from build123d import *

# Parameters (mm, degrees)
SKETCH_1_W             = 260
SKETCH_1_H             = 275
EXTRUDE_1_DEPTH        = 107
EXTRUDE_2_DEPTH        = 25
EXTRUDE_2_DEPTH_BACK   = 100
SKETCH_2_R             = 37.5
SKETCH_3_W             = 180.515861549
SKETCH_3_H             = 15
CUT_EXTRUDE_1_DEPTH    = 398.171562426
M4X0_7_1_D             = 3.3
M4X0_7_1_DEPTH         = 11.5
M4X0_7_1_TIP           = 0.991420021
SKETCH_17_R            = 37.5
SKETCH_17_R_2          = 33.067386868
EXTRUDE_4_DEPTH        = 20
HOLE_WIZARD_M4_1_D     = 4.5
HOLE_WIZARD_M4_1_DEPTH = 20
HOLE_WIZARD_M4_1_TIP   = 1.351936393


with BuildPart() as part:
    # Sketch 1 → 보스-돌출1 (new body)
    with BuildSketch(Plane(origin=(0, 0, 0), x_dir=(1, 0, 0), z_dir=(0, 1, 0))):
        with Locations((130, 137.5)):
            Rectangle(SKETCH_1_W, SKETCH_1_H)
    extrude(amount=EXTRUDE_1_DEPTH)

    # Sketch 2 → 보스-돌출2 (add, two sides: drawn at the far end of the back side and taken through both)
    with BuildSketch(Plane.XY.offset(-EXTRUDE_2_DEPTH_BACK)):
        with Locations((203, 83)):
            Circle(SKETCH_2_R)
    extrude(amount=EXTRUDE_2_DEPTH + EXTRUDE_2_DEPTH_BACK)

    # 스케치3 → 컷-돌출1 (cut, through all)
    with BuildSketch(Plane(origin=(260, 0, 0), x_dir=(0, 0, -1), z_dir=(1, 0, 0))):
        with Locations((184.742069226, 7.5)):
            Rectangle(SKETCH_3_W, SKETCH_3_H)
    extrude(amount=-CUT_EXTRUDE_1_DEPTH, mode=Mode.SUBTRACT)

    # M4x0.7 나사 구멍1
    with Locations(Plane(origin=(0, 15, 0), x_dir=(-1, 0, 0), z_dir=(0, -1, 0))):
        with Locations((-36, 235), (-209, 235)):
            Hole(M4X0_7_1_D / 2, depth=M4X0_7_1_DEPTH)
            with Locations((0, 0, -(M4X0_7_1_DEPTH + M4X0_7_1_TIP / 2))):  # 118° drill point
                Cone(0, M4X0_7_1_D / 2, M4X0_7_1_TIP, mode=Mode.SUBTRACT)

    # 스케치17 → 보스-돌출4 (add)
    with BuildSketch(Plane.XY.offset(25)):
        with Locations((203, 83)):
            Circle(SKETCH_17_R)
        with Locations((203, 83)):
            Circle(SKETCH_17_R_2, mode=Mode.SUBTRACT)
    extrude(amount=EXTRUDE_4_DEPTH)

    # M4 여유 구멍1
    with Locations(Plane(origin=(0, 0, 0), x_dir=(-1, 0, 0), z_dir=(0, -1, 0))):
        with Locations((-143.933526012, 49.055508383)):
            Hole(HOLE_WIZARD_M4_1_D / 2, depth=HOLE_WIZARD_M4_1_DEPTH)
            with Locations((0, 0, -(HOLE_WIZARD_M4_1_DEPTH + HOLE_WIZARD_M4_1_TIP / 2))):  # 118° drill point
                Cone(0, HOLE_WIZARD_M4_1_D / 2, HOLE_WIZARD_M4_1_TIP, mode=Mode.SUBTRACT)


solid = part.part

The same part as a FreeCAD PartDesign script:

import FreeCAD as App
import Part
import Sketcher
from FreeCAD import Vector
Q = App.Units.Quantity


def add_polygon(sketch, points):
    """Adds a closed chain of lines whose ends are joined by coincident constraints."""
    first, n = sketch.GeometryCount, len(points)
    for a, b in zip(points, points[1:] + points[:1]):
        sketch.addGeometry(Part.LineSegment(App.Vector(*a, 0), App.Vector(*b, 0)), False)
    for i in range(n):
        sketch.addConstraint(Sketcher.Constraint("Coincident", first + i, 2, first + (i + 1) % n, 1))

doc = App.newDocument("Part")
body = doc.addObject("PartDesign::Body", "Body")

# Sketch on XZ plane
sketch1 = body.newObject("Sketcher::SketchObject", "Sketch")
sketch1.AttachmentSupport = (doc.getObject("XZ_Plane"), [""])
sketch1.MapMode = "FlatFace"
add_polygon(sketch1, [(0, -275), (0, 0), (260, 0), (260, -275)])  # lines 0-3
sketch1.addConstraint([
    Sketcher.Constraint("Vertical", 0),
    Sketcher.Constraint("Horizontal", 1),
    Sketcher.Constraint("Vertical", 2),
    Sketcher.Constraint("Horizontal", 3),
    Sketcher.Constraint("Coincident", 0, 2, -1, 1),
    Sketcher.Constraint("DistanceX", 1, 1, 1, 2, Q("260 mm")),
    Sketcher.Constraint("DistanceY", 0, 1, 0, 2, Q("275 mm")),
])
pad1 = body.newObject("PartDesign::Pad", "Pad")
pad1.Profile = sketch1
pad1.Length = 107
pad1.Reversed = True

# Sketch on XY plane
sketch2 = body.newObject("Sketcher::SketchObject", "Sketch001")
sketch2.AttachmentSupport = (doc.getObject("XY_Plane"), [""])
sketch2.MapMode = "FlatFace"
sketch2.addGeometry(Part.Circle(Vector(203, 83, 0), Vector(0, 0, 1), 38), False)
sketch2.addConstraint([
    Sketcher.Constraint("Diameter", 0, Q("75 mm")),
    Sketcher.Constraint("DistanceX", -1, 1, 0, 3, Q("203 mm")),
    Sketcher.Constraint("DistanceY", -1, 1, 0, 3, Q("83 mm")),
])
pad2 = body.newObject("PartDesign::Pad", "Pad001")
pad2.Profile = sketch2
pad2.Type = "TwoLengths"
pad2.Length = 25
pad2.Length2 = 100

# Sketch on YZ plane
sketch3 = body.newObject("Sketcher::SketchObject", "Sketch002")
sketch3.AttachmentSupport = (doc.getObject("YZ_Plane"), [""])
sketch3.MapMode = "FlatFace"
sketch3.AttachmentOffset = App.Placement(Vector(0, 0, 260), App.Rotation())
add_polygon(sketch3, [(15, -94), (0, -94), (0, -275), (15, -275)])  # lines 0-3
sketch3.addConstraint([
    Sketcher.Constraint("Horizontal", 0),
    Sketcher.Constraint("Vertical", 1),
    Sketcher.Constraint("Horizontal", 2),
    Sketcher.Constraint("Vertical", 3),
    Sketcher.Constraint("PointOnObject", 0, 2, -2),
    Sketcher.Constraint("DistanceX", 0, 2, 0, 1, Q("15 mm")),
    Sketcher.Constraint("DistanceY", 1, 2, -1, 1, Q("275 mm")),
    Sketcher.Constraint("DistanceY", 1, 2, 1, 1, Q("180.515862 mm")),
])
pocket1 = body.newObject("PartDesign::Pocket", "Pocket")
pocket1.Profile = sketch3
pocket1.Type = "ThroughAll"

# Sketch on XZ plane
sketch4 = body.newObject("Sketcher::SketchObject", "Sketch003")
sketch4.AttachmentSupport = (doc.getObject("XZ_Plane"), [""])
sketch4.MapMode = "FlatFace"
sketch4.AttachmentOffset = App.Placement(Vector(0, 0, -15), App.Rotation())
sketch4.addGeometry([
    Part.Circle(Vector(36, -235, 0), Vector(0, 0, 1), 1.6),
    Part.Circle(Vector(209, -235, 0), Vector(0, 0, 1), 1.6),
], False)
sketch4.addConstraint([
    Sketcher.Constraint("Equal", 0, 1),
    Sketcher.Constraint("Horizontal", 0, 3, 1, 3),
    Sketcher.Constraint("Diameter", 0, Q("3.3 mm")),
    Sketcher.Constraint("DistanceX", -1, 1, 0, 3, Q("36 mm")),
    Sketcher.Constraint("DistanceY", 0, 3, -1, 1, Q("235 mm")),
    Sketcher.Constraint("DistanceX", -1, 1, 1, 3, Q("209 mm")),
])
doc.recompute()
hole = body.newObject("PartDesign::Hole", "Hole")
hole.Profile = sketch4
hole.ThreadType = "None"
hole.Diameter = 3.3
hole.DepthType = "Dimension"
hole.Depth = 11.5
hole.DrillPoint = "Angled"
hole.DrillPointAngle = 118

# Sketch on XY plane
sketch5 = body.newObject("Sketcher::SketchObject", "Sketch004")
sketch5.AttachmentSupport = (doc.getObject("XY_Plane"), [""])
sketch5.MapMode = "FlatFace"
sketch5.AttachmentOffset = App.Placement(Vector(0, 0, 25), App.Rotation())
sketch5.addGeometry([
    Part.Circle(Vector(203, 83, 0), Vector(0, 0, 1), 38),
    Part.Circle(Vector(203, 83, 0), Vector(0, 0, 1), 33),
], False)
sketch5.addConstraint([
    Sketcher.Constraint("Coincident", 1, 3, 0, 3),
    Sketcher.Constraint("Diameter", 0, Q("75 mm")),
    Sketcher.Constraint("DistanceX", -1, 1, 0, 3, Q("203 mm")),
    Sketcher.Constraint("DistanceY", -1, 1, 0, 3, Q("83 mm")),
    Sketcher.Constraint("Diameter", 1, Q("66.134774 mm")),
])
pad3 = body.newObject("PartDesign::Pad", "Pad002")
pad3.Profile = sketch5
pad3.Length = 20

# Sketch on XZ plane
sketch6 = body.newObject("Sketcher::SketchObject", "Sketch005")
sketch6.AttachmentSupport = (doc.getObject("XZ_Plane"), [""])
sketch6.MapMode = "FlatFace"
sketch6.addGeometry(Part.Circle(Vector(143.9, -49.1, 0), Vector(0, 0, 1), 2.2), False)
sketch6.addConstraint([
    Sketcher.Constraint("Diameter", 0, Q("4.5 mm")),
    Sketcher.Constraint("DistanceY", 0, 3, -1, 1, Q("49.055508 mm")),
    Sketcher.Constraint("DistanceX", -1, 1, 0, 3, Q("143.933526 mm")),
])
doc.recompute()
hole2 = body.newObject("PartDesign::Hole", "Hole001")
hole2.Profile = sketch6
hole2.ThreadType = "None"
hole2.Diameter = 4.5
hole2.DepthType = "Dimension"
hole2.Depth = 20
hole2.DrillPoint = "Angled"
hole2.DrillPointAngle = 118

doc.recompute()
